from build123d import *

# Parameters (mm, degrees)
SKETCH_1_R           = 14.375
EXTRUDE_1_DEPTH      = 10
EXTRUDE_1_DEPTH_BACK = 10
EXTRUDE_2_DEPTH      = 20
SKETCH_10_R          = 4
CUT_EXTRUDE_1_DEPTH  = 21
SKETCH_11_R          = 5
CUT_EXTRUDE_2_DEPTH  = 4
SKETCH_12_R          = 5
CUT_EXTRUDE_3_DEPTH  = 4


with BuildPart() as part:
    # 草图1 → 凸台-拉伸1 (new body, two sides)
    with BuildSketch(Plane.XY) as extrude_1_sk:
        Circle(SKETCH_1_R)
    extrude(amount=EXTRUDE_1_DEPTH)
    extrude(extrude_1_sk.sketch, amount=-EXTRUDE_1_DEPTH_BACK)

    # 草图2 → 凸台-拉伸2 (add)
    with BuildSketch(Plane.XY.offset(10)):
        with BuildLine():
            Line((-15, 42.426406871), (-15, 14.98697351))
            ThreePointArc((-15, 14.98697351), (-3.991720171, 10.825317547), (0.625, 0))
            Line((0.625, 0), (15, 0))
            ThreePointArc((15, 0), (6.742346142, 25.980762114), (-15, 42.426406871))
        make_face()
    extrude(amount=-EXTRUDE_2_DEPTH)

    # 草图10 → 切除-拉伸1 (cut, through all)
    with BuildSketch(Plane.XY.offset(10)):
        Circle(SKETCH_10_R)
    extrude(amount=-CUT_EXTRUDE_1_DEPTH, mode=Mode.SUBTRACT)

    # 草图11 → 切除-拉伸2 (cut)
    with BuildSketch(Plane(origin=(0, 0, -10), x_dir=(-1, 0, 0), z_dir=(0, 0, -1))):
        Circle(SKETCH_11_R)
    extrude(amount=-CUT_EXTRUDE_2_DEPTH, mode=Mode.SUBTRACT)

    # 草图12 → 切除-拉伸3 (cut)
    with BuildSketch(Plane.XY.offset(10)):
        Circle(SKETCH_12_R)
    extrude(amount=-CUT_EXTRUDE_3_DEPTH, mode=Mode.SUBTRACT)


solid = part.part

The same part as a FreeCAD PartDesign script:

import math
import FreeCAD as App
import Part
import Sketcher

doc = App.newDocument("Part")
body = doc.addObject("PartDesign::Body", "Body")

# Sketch on XY plane
sketch1 = doc.addObject("Sketcher::SketchObject", "Sketch")
body.addObject(sketch1)
sketch1.AttachmentSupport = (doc.XY_Plane, [""])
sketch1.MapMode = "FlatFace"
sketch1.addGeometry(Part.Circle(App.Vector(0, 0, 0), App.Vector(0, 0, 1), 14), False)
sketch1.addConstraint(Sketcher.Constraint("Coincident", 0, 3, -1, 1))
sketch1.addConstraint(Sketcher.Constraint("Diameter", 0, 28.75))
pad1 = doc.addObject("PartDesign::Pad", "Pad")
body.addObject(pad1)
pad1.Profile = sketch1
pad1.Type = "TwoLengths"
pad1.Length = 10
pad1.Length2 = 10

# Sketch on XY plane
sketch2 = doc.addObject("Sketcher::SketchObject", "Sketch001")
body.addObject(sketch2)
sketch2.AttachmentSupport = (doc.XY_Plane, [""])
sketch2.MapMode = "FlatFace"
sketch2.AttachmentOffset = App.Placement(App.Vector(0, 0, 10), App.Rotation())
sketch2.addGeometry(Part.LineSegment(App.Vector(-15, 42, 0), App.Vector(-15, 15, 0)), False)
sketch2.addGeometry(Part.ArcOfCircle(Part.Circle(App.Vector(-14, 0, 0), App.Vector(0, 0, 1), 15), math.radians(0), math.radians(92)), False)
sketch2.addGeometry(Part.LineSegment(App.Vector(1, 0, 0), App.Vector(15, 0, 0)), False)
sketch2.addGeometry(Part.ArcOfCircle(Part.Circle(App.Vector(-30, 0, 0), App.Vector(0, 0, 1), 45), math.radians(0), math.radians(71)), False)
sketch2.addConstraint(Sketcher.Constraint("Coincident", 0, 2, 1, 2))
sketch2.addConstraint(Sketcher.Constraint("Coincident", 1, 1, 2, 1))
sketch2.addConstraint(Sketcher.Constraint("Coincident", 2, 2, 3, 1))
sketch2.addConstraint(Sketcher.Constraint("Coincident", 3, 2, 0, 1))
sketch2.addConstraint(Sketcher.Constraint("Vertical", 0))
sketch2.addConstraint(Sketcher.Constraint("Horizontal", 2))
sketch2.addConstraint(Sketcher.Constraint("PointOnObject", 1, 3, -1))
sketch2.addConstraint(Sketcher.Constraint("PointOnObject", 3, 3, -1))
sketch2.addConstraint(Sketcher.Constraint("PointOnObject", 1, 1, -1))
sketch2.addConstraint(Sketcher.Constraint("Radius", 1, 15.0))
sketch2.addConstraint(Sketcher.Constraint("Radius", 3, 45.0))
sketch2.addConstraint(Sketcher.Constraint("DistanceX", 3, 3, -1, 1, 30.0))
sketch2.addConstraint(Sketcher.Constraint("DistanceX", 0, 2, -1, 1, 15.0))
sketch2.addConstraint(Sketcher.Constraint("DistanceX", 2, 1, 2, 2, 14.375))
pad2 = doc.addObject("PartDesign::Pad", "Pad001")
body.addObject(pad2)
pad2.Profile = sketch2
pad2.Length = 20
pad2.Reversed = True

# Sketch on XY plane
sketch3 = doc.addObject("Sketcher::SketchObject", "Sketch002")
body.addObject(sketch3)
sketch3.AttachmentSupport = (doc.XY_Plane, [""])
sketch3.MapMode = "FlatFace"
sketch3.AttachmentOffset = App.Placement(App.Vector(0, 0, 10), App.Rotation())
sketch3.addGeometry(Part.Circle(App.Vector(0, 0, 0), App.Vector(0, 0, 1), 4), False)
sketch3.addConstraint(Sketcher.Constraint("Coincident", 0, 3, -1, 1))
sketch3.addConstraint(Sketcher.Constraint("Diameter", 0, 8.0))
pocket1 = doc.addObject("PartDesign::Pocket", "Pocket")
body.addObject(pocket1)
pocket1.Profile = sketch3
pocket1.Type = "ThroughAll"

# Sketch on XY plane
sketch4 = doc.addObject("Sketcher::SketchObject", "Sketch003")
body.addObject(sketch4)
sketch4.AttachmentSupport = (doc.XY_Plane, [""])
sketch4.MapMode = "FlatFace"
sketch4.AttachmentOffset = App.Placement(App.Vector(0, 0, -10), App.Rotation())
sketch4.addGeometry(Part.Circle(App.Vector(0, 0, 0), App.Vector(0, 0, 1), 5), False)
sketch4.addConstraint(Sketcher.Constraint("Coincident", 0, 3, -1, 1))
sketch4.addConstraint(Sketcher.Constraint("Diameter", 0, 10.0))
pocket2 = doc.addObject("PartDesign::Pocket", "Pocket001")
body.addObject(pocket2)
pocket2.Profile = sketch4
pocket2.Length = 4
pocket2.Reversed = True

# Sketch on XY plane
sketch5 = doc.addObject("Sketcher::SketchObject", "Sketch004")
body.addObject(sketch5)
sketch5.AttachmentSupport = (doc.XY_Plane, [""])
sketch5.MapMode = "FlatFace"
sketch5.AttachmentOffset = App.Placement(App.Vector(0, 0, 10), App.Rotation())
sketch5.addGeometry(Part.Circle(App.Vector(0, 0, 0), App.Vector(0, 0, 1), 5), False)
sketch5.addConstraint(Sketcher.Constraint("Coincident", 0, 3, -1, 1))
sketch5.addConstraint(Sketcher.Constraint("Diameter", 0, 10.0))
pocket3 = doc.addObject("PartDesign::Pocket", "Pocket002")
body.addObject(pocket3)
pocket3.Profile = sketch5
pocket3.Length = 4

doc.recompute()
